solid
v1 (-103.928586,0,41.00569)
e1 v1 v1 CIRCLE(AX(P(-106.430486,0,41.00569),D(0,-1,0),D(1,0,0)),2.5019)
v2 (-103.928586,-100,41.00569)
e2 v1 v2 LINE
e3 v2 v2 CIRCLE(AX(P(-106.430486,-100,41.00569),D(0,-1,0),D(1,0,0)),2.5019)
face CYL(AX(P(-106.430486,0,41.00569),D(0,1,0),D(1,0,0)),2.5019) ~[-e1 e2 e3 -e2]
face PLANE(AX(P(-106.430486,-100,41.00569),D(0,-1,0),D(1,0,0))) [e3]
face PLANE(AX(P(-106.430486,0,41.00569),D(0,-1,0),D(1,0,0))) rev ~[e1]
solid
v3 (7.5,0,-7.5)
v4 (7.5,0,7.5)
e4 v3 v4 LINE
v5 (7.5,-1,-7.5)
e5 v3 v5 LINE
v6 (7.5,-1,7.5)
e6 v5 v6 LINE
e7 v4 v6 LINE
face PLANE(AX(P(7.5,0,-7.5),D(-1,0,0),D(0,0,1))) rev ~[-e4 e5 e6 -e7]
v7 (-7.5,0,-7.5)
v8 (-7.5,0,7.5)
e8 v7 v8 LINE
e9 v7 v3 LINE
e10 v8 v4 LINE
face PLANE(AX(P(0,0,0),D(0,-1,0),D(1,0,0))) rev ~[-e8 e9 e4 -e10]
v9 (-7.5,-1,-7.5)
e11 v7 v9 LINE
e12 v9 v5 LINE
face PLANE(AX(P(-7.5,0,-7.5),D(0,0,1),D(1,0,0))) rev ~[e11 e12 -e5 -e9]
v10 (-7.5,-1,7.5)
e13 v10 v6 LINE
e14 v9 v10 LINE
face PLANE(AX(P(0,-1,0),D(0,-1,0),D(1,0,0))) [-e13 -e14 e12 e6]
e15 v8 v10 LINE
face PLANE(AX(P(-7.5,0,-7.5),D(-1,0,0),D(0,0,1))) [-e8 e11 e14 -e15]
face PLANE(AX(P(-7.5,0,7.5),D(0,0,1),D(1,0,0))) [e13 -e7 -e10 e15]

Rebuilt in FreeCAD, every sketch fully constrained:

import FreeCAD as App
import Part
import Sketcher
from FreeCAD import Vector

doc = App.newDocument("Part")
params = doc.addObject("Spreadsheet::Sheet", "Params")
for row, (alias, value) in enumerate([
    ("sketch1_width", "15 mm"),
    ("pad1_length", "1 mm"),
    ("pad2_length", "100 mm"),
], start=1):
    params.set(f"A{row}", alias)
    params.set(f"B{row}", "=" + value)
    params.setAlias(f"B{row}", alias)

body = doc.addObject("PartDesign::Body", "Body")

# Sketch on XZ plane
sketch1 = body.newObject("Sketcher::SketchObject", "Sketch")
sketch1.AttachmentSupport = (doc.getObject("XZ_Plane"), [""])
sketch1.MapMode = "FlatFace"
sketch1.addGeometry([
    Part.LineSegment(Vector(-8, 8, 0), Vector(-8, -8, 0)),
    Part.LineSegment(Vector(-8, -8, 0), Vector(8, -8, 0)),
    Part.LineSegment(Vector(8, -8, 0), Vector(8, 8, 0)),
    Part.LineSegment(Vector(8, 8, 0), Vector(-8, 8, 0)),
], False)
sketch1.addConstraint([
    Sketcher.Constraint("Coincident", 0, 2, 1, 1),
    Sketcher.Constraint("Coincident", 1, 2, 2, 1),
    Sketcher.Constraint("Coincident", 2, 2, 3, 1),
    Sketcher.Constraint("Coincident", 3, 2, 0, 1),
    Sketcher.Constraint("Vertical", 0),
    Sketcher.Constraint("Horizontal", 1),
    Sketcher.Constraint("Vertical", 2),
    Sketcher.Constraint("Horizontal", 3),
    Sketcher.Constraint("Symmetric", 0, 2, 2, 2, -1, 1),
    Sketcher.Constraint("Equal", 3, 0),
    Sketcher.Constraint("DistanceX", 1, 1, 1, 2, 15.0),
])
sketch1.setExpression("Constraints[10]", "Params.sketch1_width")
pad1 = body.newObject("PartDesign::Pad", "Pad")
pad1.Profile = sketch1
pad1.setExpression("Length", "Params.pad1_length")
body2 = doc.addObject("PartDesign::Body", "Body001")

# Sketch on XZ plane
sketch2 = body2.newObject("Sketcher::SketchObject", "Sketch001")
sketch2.AttachmentSupport = (doc.getObject("XZ_Plane001"), [""])
sketch2.MapMode = "FlatFace"
sketch2.addGeometry(Part.Circle(Vector(-106.4, 41, 0), Vector(0, 0, 1), 2.5), False)
sketch2.addConstraint([
    Sketcher.Constraint("Diameter", 0, 5.0038),
    Sketcher.Constraint("DistanceY", -1, 1, 0, 3, 41.00569),
    Sketcher.Constraint("DistanceX", 0, 3, -1, 1, 106.430486),
])
pad2 = body2.newObject("PartDesign::Pad", "Pad001")
pad2.Profile = sketch2
pad2.setExpression("Length", "Params.pad2_length")

doc.recompute()
